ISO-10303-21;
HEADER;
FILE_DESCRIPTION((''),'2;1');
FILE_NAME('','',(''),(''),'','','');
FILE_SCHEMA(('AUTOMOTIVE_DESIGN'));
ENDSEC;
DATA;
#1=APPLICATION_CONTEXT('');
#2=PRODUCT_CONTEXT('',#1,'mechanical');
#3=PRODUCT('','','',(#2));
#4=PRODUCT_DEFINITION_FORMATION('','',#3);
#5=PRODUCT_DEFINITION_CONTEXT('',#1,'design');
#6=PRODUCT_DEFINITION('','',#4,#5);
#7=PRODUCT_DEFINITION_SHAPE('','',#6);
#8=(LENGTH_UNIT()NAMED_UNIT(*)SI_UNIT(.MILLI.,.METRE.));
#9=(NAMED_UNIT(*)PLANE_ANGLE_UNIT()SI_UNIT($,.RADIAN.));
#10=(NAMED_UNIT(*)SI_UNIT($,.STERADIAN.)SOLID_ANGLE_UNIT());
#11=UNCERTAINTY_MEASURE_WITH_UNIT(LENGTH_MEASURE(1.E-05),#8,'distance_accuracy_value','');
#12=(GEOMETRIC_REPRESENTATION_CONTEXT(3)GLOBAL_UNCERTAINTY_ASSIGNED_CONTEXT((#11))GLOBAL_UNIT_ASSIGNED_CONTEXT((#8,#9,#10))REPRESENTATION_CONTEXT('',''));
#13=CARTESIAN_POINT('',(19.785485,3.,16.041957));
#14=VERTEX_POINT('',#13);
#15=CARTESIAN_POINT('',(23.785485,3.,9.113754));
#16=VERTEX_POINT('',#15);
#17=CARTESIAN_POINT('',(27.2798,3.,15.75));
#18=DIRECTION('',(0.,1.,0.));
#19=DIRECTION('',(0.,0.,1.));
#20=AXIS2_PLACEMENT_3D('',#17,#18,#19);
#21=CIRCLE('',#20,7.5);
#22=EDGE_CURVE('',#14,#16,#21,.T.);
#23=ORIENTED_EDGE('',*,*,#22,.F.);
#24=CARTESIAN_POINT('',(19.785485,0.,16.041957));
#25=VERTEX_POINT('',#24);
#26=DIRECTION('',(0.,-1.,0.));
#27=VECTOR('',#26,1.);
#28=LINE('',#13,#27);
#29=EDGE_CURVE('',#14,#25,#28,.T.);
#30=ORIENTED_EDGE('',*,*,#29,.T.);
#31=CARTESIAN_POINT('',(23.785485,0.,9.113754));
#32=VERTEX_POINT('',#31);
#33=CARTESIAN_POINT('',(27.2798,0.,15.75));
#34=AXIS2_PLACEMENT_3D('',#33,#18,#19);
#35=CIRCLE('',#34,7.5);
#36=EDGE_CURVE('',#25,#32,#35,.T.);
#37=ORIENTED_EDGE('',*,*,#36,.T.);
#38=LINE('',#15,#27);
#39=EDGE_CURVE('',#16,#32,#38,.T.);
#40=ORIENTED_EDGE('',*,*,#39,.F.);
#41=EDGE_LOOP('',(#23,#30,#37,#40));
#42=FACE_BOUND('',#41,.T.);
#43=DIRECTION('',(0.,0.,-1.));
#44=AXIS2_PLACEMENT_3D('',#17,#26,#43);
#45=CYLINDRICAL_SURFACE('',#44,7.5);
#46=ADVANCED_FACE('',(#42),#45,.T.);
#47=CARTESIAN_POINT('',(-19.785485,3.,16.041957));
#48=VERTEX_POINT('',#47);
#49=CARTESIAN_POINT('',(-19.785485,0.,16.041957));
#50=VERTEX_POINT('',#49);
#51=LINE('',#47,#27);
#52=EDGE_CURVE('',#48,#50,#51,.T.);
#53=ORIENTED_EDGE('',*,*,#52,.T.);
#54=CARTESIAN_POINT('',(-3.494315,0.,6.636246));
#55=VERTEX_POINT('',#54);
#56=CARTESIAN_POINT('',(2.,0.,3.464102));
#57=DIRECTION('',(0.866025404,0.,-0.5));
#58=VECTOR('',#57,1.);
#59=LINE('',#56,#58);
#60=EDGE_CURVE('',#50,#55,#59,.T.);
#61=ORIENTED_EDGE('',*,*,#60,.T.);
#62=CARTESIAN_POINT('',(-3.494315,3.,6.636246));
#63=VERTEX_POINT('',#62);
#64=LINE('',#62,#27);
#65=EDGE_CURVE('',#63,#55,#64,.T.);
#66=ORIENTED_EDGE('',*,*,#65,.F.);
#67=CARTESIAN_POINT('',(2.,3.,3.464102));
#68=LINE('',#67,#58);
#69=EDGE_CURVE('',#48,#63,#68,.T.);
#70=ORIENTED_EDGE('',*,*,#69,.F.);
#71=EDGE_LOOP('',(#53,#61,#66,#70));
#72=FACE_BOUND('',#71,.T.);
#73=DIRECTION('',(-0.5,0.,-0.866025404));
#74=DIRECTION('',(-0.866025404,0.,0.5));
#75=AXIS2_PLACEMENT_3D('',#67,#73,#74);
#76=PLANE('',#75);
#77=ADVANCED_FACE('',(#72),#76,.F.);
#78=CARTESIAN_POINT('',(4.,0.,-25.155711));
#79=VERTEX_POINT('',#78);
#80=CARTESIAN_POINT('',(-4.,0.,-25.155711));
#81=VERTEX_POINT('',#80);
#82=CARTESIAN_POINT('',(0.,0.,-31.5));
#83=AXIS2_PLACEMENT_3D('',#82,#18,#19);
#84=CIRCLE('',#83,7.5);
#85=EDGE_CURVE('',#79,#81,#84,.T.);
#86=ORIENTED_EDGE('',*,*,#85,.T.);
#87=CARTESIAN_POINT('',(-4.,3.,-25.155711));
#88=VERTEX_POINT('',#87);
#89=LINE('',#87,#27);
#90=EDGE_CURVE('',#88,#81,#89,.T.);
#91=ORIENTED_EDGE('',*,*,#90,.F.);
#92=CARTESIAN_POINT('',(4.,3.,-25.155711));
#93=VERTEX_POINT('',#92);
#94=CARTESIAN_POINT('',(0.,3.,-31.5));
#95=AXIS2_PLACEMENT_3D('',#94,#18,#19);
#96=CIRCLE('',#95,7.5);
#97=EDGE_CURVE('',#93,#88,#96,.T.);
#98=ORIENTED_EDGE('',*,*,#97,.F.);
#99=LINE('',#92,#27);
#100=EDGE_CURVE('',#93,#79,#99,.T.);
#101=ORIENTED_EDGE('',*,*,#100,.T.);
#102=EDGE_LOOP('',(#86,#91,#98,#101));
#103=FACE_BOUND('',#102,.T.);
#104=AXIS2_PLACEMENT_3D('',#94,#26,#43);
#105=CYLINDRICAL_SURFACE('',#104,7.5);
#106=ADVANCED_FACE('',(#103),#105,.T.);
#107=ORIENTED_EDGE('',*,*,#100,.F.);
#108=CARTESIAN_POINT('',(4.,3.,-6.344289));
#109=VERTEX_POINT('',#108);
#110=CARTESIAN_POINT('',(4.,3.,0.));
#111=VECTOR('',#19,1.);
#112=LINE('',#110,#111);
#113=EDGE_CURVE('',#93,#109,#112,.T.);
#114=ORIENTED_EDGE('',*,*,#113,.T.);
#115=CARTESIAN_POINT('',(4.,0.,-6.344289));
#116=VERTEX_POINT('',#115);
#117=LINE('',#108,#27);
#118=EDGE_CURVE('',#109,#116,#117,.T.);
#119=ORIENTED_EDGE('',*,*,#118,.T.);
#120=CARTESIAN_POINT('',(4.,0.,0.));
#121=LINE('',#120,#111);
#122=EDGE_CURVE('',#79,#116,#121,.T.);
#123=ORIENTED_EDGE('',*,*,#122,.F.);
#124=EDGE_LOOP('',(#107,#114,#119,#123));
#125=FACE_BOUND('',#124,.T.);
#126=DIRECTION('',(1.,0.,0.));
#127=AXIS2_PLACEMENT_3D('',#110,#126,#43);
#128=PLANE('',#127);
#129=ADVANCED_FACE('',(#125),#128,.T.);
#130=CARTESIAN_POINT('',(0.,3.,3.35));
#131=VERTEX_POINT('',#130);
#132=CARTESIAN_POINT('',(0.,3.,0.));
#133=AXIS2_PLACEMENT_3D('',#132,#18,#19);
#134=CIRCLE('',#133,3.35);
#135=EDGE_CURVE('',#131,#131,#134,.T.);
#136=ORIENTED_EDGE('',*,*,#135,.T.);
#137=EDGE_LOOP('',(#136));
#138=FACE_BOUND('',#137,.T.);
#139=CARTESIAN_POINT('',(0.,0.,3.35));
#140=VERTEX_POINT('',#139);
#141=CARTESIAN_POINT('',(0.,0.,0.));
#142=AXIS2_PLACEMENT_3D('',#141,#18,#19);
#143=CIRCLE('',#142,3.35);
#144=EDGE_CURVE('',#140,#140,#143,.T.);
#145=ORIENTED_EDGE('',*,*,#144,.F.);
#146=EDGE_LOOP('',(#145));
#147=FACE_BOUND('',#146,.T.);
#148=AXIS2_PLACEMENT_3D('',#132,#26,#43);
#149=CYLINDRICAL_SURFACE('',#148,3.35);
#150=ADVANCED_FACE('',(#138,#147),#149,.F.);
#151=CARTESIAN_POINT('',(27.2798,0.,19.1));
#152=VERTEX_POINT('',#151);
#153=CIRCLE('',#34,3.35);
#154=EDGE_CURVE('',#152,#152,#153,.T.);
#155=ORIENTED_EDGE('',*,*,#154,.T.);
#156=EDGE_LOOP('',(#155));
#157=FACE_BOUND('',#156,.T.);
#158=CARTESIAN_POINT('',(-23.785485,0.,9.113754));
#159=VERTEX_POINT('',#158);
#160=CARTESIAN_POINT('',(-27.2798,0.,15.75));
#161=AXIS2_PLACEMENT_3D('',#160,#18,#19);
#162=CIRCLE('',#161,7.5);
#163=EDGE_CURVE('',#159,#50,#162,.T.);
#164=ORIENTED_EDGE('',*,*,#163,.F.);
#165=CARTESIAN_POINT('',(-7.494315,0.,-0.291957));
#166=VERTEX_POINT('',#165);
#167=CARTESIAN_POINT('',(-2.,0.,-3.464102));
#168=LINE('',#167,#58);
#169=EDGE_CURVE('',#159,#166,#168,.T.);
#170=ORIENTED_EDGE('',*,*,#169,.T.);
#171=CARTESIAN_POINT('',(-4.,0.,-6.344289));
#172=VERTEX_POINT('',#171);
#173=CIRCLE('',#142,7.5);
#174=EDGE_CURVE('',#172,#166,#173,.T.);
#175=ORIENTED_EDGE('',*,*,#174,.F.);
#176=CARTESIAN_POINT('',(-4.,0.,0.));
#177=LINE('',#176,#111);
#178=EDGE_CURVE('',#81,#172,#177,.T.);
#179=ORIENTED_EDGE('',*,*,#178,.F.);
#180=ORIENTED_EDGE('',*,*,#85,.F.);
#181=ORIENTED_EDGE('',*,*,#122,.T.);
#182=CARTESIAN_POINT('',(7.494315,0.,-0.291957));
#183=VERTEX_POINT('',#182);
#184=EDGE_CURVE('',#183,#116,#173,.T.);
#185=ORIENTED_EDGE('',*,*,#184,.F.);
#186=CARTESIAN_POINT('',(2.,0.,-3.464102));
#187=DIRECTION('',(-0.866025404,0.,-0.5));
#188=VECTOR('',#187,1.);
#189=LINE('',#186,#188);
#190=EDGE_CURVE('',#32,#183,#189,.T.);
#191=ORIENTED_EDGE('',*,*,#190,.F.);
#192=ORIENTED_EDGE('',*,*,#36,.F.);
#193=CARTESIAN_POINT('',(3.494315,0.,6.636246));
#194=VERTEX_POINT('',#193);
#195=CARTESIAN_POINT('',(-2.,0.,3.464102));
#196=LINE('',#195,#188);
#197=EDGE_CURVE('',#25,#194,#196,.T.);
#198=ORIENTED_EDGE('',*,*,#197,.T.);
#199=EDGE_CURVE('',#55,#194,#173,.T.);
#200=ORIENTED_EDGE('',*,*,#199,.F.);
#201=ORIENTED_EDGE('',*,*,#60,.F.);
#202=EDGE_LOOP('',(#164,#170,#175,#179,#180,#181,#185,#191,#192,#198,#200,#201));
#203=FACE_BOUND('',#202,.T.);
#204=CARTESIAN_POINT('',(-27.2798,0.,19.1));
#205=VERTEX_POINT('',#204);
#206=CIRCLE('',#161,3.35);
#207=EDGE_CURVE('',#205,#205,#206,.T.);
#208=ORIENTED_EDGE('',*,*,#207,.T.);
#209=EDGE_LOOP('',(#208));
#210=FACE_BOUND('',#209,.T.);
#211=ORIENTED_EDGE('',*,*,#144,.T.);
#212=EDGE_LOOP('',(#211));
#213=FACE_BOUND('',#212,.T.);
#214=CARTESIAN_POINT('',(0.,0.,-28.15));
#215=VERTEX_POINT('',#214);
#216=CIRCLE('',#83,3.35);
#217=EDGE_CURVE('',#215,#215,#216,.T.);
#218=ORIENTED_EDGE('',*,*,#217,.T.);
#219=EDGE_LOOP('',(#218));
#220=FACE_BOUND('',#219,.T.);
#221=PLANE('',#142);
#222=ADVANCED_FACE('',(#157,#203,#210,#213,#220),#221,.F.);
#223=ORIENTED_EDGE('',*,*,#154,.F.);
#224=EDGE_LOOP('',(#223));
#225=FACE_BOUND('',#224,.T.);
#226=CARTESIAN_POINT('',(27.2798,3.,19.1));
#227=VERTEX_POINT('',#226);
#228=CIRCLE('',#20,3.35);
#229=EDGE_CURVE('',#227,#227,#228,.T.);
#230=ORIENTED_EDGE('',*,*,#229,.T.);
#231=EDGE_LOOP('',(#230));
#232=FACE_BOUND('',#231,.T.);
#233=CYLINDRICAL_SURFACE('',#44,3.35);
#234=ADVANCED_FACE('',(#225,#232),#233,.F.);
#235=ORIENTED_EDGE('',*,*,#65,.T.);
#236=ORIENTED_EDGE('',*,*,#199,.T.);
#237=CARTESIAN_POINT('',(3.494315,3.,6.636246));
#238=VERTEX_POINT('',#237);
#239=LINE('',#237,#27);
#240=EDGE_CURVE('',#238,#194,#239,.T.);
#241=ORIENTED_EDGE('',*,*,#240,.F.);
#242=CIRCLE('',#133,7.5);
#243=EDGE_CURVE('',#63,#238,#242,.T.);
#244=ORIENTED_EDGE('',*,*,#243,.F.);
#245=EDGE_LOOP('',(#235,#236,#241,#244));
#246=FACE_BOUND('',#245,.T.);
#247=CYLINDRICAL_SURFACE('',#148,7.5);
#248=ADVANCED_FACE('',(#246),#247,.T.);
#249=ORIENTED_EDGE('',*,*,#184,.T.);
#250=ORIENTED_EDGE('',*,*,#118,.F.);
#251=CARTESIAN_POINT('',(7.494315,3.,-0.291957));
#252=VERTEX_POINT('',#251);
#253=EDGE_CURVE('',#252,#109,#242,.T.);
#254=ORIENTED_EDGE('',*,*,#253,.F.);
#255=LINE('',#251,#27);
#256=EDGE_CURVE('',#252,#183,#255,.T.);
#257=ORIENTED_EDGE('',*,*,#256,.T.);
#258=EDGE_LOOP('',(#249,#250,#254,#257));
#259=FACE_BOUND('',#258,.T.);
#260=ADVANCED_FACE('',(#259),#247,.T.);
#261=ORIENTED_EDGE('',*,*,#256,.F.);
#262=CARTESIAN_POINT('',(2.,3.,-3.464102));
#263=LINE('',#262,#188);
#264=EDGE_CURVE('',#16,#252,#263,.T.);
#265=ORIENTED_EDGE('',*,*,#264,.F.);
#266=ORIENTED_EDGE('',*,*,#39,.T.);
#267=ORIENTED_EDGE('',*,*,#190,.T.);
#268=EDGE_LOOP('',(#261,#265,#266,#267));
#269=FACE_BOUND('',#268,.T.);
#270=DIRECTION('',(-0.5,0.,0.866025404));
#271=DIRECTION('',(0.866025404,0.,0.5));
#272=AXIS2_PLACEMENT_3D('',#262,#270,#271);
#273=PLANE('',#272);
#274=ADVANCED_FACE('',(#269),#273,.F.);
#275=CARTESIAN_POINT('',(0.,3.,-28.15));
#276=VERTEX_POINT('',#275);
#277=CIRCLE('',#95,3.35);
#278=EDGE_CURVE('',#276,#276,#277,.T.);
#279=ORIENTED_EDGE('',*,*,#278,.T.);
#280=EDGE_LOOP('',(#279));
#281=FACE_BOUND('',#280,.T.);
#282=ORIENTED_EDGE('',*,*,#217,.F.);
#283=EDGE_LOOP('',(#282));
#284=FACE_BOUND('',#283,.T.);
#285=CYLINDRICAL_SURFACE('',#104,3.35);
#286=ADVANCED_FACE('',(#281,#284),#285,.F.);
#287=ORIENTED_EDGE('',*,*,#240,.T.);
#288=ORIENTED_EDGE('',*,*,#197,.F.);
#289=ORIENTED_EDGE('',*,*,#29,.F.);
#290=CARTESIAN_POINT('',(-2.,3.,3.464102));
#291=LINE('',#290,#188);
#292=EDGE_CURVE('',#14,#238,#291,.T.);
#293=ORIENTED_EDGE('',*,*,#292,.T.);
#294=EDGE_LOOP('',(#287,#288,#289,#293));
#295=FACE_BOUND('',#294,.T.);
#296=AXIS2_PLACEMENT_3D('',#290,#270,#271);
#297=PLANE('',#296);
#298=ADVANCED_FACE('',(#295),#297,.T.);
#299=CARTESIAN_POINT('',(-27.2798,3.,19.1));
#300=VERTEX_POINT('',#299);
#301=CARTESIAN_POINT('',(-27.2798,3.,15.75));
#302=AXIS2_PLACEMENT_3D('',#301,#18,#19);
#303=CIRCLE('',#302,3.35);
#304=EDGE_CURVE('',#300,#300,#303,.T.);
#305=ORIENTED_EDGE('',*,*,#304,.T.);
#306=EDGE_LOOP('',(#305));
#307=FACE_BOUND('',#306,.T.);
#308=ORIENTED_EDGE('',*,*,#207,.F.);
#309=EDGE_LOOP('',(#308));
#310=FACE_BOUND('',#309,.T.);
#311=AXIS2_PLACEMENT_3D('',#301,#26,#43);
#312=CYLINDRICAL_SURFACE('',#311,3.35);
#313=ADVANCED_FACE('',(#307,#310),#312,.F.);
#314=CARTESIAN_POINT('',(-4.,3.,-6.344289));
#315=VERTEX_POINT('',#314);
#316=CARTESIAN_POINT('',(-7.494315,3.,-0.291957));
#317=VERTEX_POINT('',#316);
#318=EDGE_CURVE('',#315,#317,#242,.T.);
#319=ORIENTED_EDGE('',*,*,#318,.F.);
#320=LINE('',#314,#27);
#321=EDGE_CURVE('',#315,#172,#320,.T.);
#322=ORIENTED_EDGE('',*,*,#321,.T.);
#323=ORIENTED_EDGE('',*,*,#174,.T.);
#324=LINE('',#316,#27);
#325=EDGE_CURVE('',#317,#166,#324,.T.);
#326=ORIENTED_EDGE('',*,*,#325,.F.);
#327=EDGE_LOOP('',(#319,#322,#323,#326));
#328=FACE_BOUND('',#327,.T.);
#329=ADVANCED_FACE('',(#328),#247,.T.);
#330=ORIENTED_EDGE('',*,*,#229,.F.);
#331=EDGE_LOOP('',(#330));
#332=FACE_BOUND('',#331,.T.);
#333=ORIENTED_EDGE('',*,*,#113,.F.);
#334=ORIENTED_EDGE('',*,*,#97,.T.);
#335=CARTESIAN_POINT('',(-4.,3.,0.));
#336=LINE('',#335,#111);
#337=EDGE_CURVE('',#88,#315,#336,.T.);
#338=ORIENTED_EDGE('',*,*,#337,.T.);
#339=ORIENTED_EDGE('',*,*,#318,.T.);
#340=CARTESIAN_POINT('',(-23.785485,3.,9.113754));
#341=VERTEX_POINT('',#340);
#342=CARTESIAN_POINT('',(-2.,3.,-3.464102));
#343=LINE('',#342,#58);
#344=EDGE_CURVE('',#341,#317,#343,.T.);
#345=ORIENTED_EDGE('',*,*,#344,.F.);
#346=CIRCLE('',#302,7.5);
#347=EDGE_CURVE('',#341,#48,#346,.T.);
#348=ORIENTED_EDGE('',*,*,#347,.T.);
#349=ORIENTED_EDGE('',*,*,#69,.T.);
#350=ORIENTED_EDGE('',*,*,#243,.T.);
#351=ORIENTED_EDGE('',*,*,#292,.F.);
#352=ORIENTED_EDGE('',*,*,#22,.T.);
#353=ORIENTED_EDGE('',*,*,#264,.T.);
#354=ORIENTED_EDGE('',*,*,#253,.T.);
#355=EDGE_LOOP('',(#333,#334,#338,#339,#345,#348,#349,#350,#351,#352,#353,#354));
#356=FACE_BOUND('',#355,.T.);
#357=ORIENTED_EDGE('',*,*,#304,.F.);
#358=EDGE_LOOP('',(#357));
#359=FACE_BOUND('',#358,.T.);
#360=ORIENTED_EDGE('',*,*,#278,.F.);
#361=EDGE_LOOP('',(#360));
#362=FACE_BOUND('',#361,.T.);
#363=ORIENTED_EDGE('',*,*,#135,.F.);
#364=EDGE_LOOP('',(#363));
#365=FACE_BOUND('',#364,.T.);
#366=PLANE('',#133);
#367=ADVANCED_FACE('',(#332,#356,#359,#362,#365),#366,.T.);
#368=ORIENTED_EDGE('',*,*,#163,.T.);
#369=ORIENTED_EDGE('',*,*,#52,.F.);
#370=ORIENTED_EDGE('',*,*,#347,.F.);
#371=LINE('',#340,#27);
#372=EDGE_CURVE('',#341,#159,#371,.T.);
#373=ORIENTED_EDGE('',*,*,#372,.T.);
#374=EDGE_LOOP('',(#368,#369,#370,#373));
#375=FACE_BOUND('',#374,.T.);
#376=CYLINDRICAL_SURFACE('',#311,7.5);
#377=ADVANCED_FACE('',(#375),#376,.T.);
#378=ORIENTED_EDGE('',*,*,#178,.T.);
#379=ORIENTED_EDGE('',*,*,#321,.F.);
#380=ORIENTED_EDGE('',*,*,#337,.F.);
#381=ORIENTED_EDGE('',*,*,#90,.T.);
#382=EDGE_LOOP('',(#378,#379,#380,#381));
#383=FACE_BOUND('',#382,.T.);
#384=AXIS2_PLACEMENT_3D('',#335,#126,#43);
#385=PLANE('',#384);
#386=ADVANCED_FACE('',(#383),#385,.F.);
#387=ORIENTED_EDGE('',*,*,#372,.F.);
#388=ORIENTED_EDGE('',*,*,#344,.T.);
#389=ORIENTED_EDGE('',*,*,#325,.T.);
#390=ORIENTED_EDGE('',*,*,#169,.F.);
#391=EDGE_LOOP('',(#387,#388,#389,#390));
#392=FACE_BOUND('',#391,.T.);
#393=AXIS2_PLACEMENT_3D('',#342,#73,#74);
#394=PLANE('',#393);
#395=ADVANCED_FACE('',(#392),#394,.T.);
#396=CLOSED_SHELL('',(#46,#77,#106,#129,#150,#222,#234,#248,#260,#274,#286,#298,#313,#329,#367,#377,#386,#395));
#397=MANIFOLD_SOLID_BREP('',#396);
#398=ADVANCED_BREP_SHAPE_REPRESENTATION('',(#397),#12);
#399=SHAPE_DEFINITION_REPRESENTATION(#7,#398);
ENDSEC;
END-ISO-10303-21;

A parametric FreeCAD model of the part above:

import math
import FreeCAD as App
import Part
import Sketcher

V = App.Vector
Q = App.Units.Quantity

doc = App.newDocument("Part")
body = doc.addObject("PartDesign::Body", "Body")

# Sketch on XZ plane
sketch1 = doc.addObject("Sketcher::SketchObject", "Sketch")
body.addObject(sketch1)
sketch1.AttachmentSupport = (doc.XZ_Plane, [""])
sketch1.MapMode = "FlatFace"
sketch1.addGeometry([
    Part.LineSegment(V(4, -6.3, 0), V(4, -25.2, 0)),  # 0
    Part.ArcOfCircle(Part.Circle(V(0, -31.5, 0), V(0, 0, 1), 7.5), math.radians(122), math.radians(418)),  # 1
    Part.LineSegment(V(-4, -25.2, 0), V(-4, -6.3, 0)),  # 2
    Part.ArcOfCircle(Part.Circle(V(0, 0, 0), V(0, 0, 1), 7.5), math.radians(-178), math.radians(-122)),  # 3
    Part.LineSegment(V(-7.5, -0.3, 0), V(-23.8, 9.1, 0)),  # 4
    Part.ArcOfCircle(Part.Circle(V(-27.3, 15.8, 0), V(0, 0, 1), 7.5), math.radians(2), math.radians(298)),  # 5
    Part.LineSegment(V(-19.8, 16, 0), V(-3.5, 6.6, 0)),  # 6
    Part.ArcOfCircle(Part.Circle(V(0, 0, 0), V(0, 0, 1), 7.5), math.radians(62), math.radians(118)),  # 7
    Part.LineSegment(V(3.5, 6.6, 0), V(19.8, 16, 0)),  # 8
    Part.ArcOfCircle(Part.Circle(V(27.3, 15.8, 0), V(0, 0, 1), 7.5), math.radians(-118), math.radians(178)),  # 9
    Part.LineSegment(V(23.8, 9.1, 0), V(7.5, -0.3, 0)),  # 10
    Part.ArcOfCircle(Part.Circle(V(0, 0, 0), V(0, 0, 1), 7.5), math.radians(-58), math.radians(-2)),  # 11
    Part.Circle(V(-27.3, 15.8, 0), V(0, 0, 1), 3.4),  # 12
    Part.Circle(V(27.3, 15.8, 0), V(0, 0, 1), 3.4),  # 13
    Part.Circle(V(0, 0, 0), V(0, 0, 1), 3.4),  # 14
    Part.Circle(V(0, -31.5, 0), V(0, 0, 1), 3.4),  # 15
], False)
sketch1.addConstraint([
    Sketcher.Constraint("Coincident", 0, 2, 1, 2),
    Sketcher.Constraint("Coincident", 1, 1, 2, 1),
    Sketcher.Constraint("Coincident", 2, 2, 3, 2),
    Sketcher.Constraint("Coincident", 3, 1, 4, 1),
    Sketcher.Constraint("Coincident", 4, 2, 5, 2),
    Sketcher.Constraint("Coincident", 5, 1, 6, 1),
    Sketcher.Constraint("Coincident", 6, 2, 7, 2),
    Sketcher.Constraint("Coincident", 7, 1, 8, 1),
    Sketcher.Constraint("Coincident", 8, 2, 9, 2),
    Sketcher.Constraint("Coincident", 9, 1, 10, 1),
    Sketcher.Constraint("Coincident", 10, 2, 11, 2),
    Sketcher.Constraint("Coincident", 11, 1, 0, 1),
    Sketcher.Constraint("Vertical", 0),
    Sketcher.Constraint("Vertical", 2),
    Sketcher.Constraint("Coincident", 3, 3, -1, 1),
    Sketcher.Constraint("Coincident", 7, 3, -1, 1),
    Sketcher.Constraint("Coincident", 11, 3, -1, 1),
    Sketcher.Constraint("Coincident", 14, 3, -1, 1),
    Sketcher.Constraint("Coincident", 12, 3, 5, 3),
    Sketcher.Constraint("Coincident", 13, 3, 9, 3),
    Sketcher.Constraint("Coincident", 15, 3, 1, 3),
    Sketcher.Constraint("Equal", 1, 3),
    Sketcher.Constraint("Equal", 3, 5),
    Sketcher.Constraint("Equal", 5, 7),
    Sketcher.Constraint("Equal", 7, 9),
    Sketcher.Constraint("Equal", 9, 11),
    Sketcher.Constraint("Equal", 12, 13),
    Sketcher.Constraint("Equal", 13, 14),
    Sketcher.Constraint("Equal", 14, 15),
    Sketcher.Constraint("Symmetric", 5, 3, 9, 3, -2),
    Sketcher.Constraint("Symmetric", 0, 2, 1, 1, -2),
    Sketcher.Constraint("Parallel", 4, 6),
    Sketcher.Constraint("Parallel", 8, 10),
    Sketcher.Constraint("Horizontal", 6, 2, 7, 1),
    Sketcher.Constraint("Horizontal", 5, 1, 8, 2),
    Sketcher.Constraint("Horizontal", 4, 2, 9, 1),
    Sketcher.Constraint("Equal", 4, 6),
    Sketcher.Constraint("Diameter", 12, Q("6.7 mm")),
    Sketcher.Constraint("Radius", 1, Q("7.5 mm")),
    Sketcher.Constraint("Angle", 4, Q("150 deg")),
    Sketcher.Constraint("DistanceX", -1, 1, 0, 2, Q("4 mm")),
    Sketcher.Constraint("DistanceX", 4, 2, 5, 1, Q("4 mm")),
    Sketcher.Constraint("DistanceY", 1, 3, -1, 1, Q("31.5 mm")),
    Sketcher.Constraint("DistanceY", -1, 1, 5, 3, Q("15.75 mm")),
    Sketcher.Constraint("DistanceX", 5, 3, -1, 1, Q("27.2798 mm")),
])
pad1 = doc.addObject("PartDesign::Pad", "Pad")
body.addObject(pad1)
pad1.Profile = sketch1
pad1.Length = 3
pad1.Reversed = True

doc.recompute()
